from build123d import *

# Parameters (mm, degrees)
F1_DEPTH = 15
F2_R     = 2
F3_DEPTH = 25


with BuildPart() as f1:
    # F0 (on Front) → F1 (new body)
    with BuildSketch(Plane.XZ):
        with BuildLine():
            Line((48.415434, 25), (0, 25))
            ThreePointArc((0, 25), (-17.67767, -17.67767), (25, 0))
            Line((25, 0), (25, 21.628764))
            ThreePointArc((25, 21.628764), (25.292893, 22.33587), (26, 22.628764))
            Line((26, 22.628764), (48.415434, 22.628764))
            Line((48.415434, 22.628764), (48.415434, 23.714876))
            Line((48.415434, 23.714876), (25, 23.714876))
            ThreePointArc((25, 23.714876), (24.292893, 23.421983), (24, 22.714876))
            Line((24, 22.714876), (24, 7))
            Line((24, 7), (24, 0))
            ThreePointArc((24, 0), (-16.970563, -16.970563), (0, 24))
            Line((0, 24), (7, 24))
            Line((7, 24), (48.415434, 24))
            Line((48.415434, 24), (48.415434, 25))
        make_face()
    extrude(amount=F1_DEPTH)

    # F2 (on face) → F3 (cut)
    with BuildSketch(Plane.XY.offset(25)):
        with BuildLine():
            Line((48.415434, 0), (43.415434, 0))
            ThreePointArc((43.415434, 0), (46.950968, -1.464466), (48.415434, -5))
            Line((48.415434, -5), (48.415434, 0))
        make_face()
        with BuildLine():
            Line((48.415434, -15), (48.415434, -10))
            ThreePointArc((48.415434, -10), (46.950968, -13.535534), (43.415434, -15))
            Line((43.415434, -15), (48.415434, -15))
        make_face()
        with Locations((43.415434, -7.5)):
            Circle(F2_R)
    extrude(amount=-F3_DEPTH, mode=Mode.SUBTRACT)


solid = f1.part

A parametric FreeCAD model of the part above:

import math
import FreeCAD as App
import Part
import Sketcher

V = App.Vector
Q = App.Units.Quantity

doc = App.newDocument("Part")
params = doc.addObject("Spreadsheet::Sheet", "Params")
for row, (alias, value) in enumerate([
    ("sketch1_radius", "25 mm"),
    ("sketch1_radius2", "1.000001 mm"),
    ("pad1_length", "15 mm"),
    ("sketch2_diameter", "4 mm"),
    ("sketch2_radius", "5 mm"),
    ("pocket1_length", "25 mm"),
], start=1):
    params.set(f"A{row}", alias)
    params.set(f"B{row}", "=" + value)
    params.setAlias(f"B{row}", alias)

body = doc.addObject("PartDesign::Body", "Body")

# Sketch on XZ plane
sketch1 = body.newObject("Sketcher::SketchObject", "Sketch")
sketch1.AttachmentSupport = (doc.getObject("XZ_Plane"), [""])
sketch1.MapMode = "FlatFace"
sketch1.addGeometry(Part.LineSegment(V(48.415434, 25, 0), V(0, 25, 0)), False)
sketch1.addGeometry(Part.ArcOfCircle(Part.Circle(V(0, 0, 0), V(0, 0, 1), 25), math.radians(89.999999), math.radians(360.000001)), False)
sketch1.addGeometry(Part.LineSegment(V(25, 0, 0), V(25, 21.628764, 0)), False)
sketch1.addGeometry(Part.ArcOfCircle(Part.Circle(V(26.000001, 21.628763, 0), V(0, 0, 1), 1.000001), math.radians(90.000055), math.radians(179.999945)), False)
sketch1.addGeometry(Part.LineSegment(V(26, 22.628764, 0), V(48.415434, 22.628764, 0)), False)
sketch1.addGeometry(Part.LineSegment(V(48.415434, 22.628764, 0), V(48.415434, 23.714876, 0)), False)
sketch1.addGeometry(Part.LineSegment(V(48.415434, 23.714876, 0), V(25, 23.714876, 0)), False)
sketch1.addGeometry(Part.ArcOfCircle(Part.Circle(V(24.999999, 22.714877, 0), V(0, 0, 1), 0.999999), math.radians(89.999957), math.radians(180.000043)), False)
sketch1.addGeometry(Part.LineSegment(V(24, 22.714876, 0), V(24, 0, 0)), False)
sketch1.addGeometry(Part.ArcOfCircle(Part.Circle(V(0, 0, 0), V(0, 0, 1), 24), math.radians(90), math.radians(360)), False)
sketch1.addGeometry(Part.LineSegment(V(0, 24, 0), V(48.415434, 24, 0)), False)
sketch1.addGeometry(Part.LineSegment(V(48.415434, 24, 0), V(48.415434, 25, 0)), False)
sketch1.addConstraint(Sketcher.Constraint("Tangent", 0, 2, 1, 1))
sketch1.addConstraint(Sketcher.Constraint("Tangent", 1, 2, 2, 1))
sketch1.addConstraint(Sketcher.Constraint("Tangent", 2, 2, 3, 2))
sketch1.addConstraint(Sketcher.Constraint("Tangent", 3, 1, 4, 1))
sketch1.addConstraint(Sketcher.Constraint("Coincident", 4, 2, 5, 1))
sketch1.addConstraint(Sketcher.Constraint("Coincident", 5, 2, 6, 1))
sketch1.addConstraint(Sketcher.Constraint("Tangent", 6, 2, 7, 1))
sketch1.addConstraint(Sketcher.Constraint("Tangent", 7, 2, 8, 1))
sketch1.addConstraint(Sketcher.Constraint("Tangent", 8, 2, 9, 2))
sketch1.addConstraint(Sketcher.Constraint("Tangent", 9, 1, 10, 1))
sketch1.addConstraint(Sketcher.Constraint("Coincident", 10, 2, 11, 1))
sketch1.addConstraint(Sketcher.Constraint("Coincident", 11, 2, 0, 1))
sketch1.addConstraint(Sketcher.Constraint("Horizontal", 0))
sketch1.addConstraint(Sketcher.Constraint("Vertical", 2))
sketch1.addConstraint(Sketcher.Constraint("Horizontal", 4))
sketch1.addConstraint(Sketcher.Constraint("Vertical", 5))
sketch1.addConstraint(Sketcher.Constraint("Horizontal", 6))
sketch1.addConstraint(Sketcher.Constraint("Vertical", 8))
sketch1.addConstraint(Sketcher.Constraint("Horizontal", 10))
sketch1.addConstraint(Sketcher.Constraint("Vertical", 11))
sketch1.addConstraint(Sketcher.Constraint("Coincident", 1, 3, -1, 1))
sketch1.addConstraint(Sketcher.Constraint("Coincident", 9, 3, -1, 1))
sketch1.addConstraint(Sketcher.Constraint("Equal", 3, 7))
sketch1.addConstraint(Sketcher.Constraint("Vertical", 7, 3, 1, 2))
sketch1.addConstraint(Sketcher.Constraint("Vertical", 5, 2, 10, 2))
sketch1.addConstraint(Sketcher.Constraint("Radius", 1, Q("25 mm")))
sketch1.addConstraint(Sketcher.Constraint("Radius", 3, Q("1.000001 mm")))
sketch1.addConstraint(Sketcher.Constraint("DistanceX", 0, 2, 0, 1, Q("48.415434 mm")))
sketch1.addConstraint(Sketcher.Constraint("DistanceY", 2, 1, 2, 2, Q("21.628764 mm")))
sketch1.addConstraint(Sketcher.Constraint("DistanceY", 5, 1, 5, 2, Q("1.086112 mm")))
sketch1.setExpression("Constraints[25]", "Params.sketch1_radius")
sketch1.setExpression("Constraints[26]", "Params.sketch1_radius2")
pad1 = body.newObject("PartDesign::Pad", "Pad")
pad1.Profile = sketch1
pad1.setExpression("Length", "Params.pad1_length")

# Sketch on XY plane
sketch2 = body.newObject("Sketcher::SketchObject", "Sketch001")
sketch2.AttachmentSupport = (doc.getObject("XY_Plane"), [""])
sketch2.MapMode = "FlatFace"
sketch2.AttachmentOffset = App.Placement(V(0, 0, 25), App.Rotation())
sketch2.addGeometry(Part.LineSegment(V(48.415434, 0, 0), V(43.415434, 0, 0)), False)
sketch2.addGeometry(Part.ArcOfCircle(Part.Circle(V(43.415434, -5, 0), V(0, 0, 1), 5), math.radians(-0.000004), math.radians(90.000004)), False)
sketch2.addGeometry(Part.LineSegment(V(48.415434, -5, 0), V(48.415434, 0, 0)), False)
sketch2.addGeometry(Part.LineSegment(V(48.415434, -15, 0), V(48.415434, -10, 0)), False)
sketch2.addGeometry(Part.ArcOfCircle(Part.Circle(V(43.415434, -10, 0), V(0, 0, 1), 5), math.radians(-90.000004), math.radians(0.000004)), False)
sketch2.addGeometry(Part.LineSegment(V(43.415434, -15, 0), V(48.415434, -15, 0)), False)
sketch2.addGeometry(Part.Circle(V(43.415434, -7.5, 0), V(0, 0, 1), 2), False)
sketch2.addConstraint(Sketcher.Constraint("Tangent", 0, 2, 1, 2))
sketch2.addConstraint(Sketcher.Constraint("Tangent", 1, 1, 2, 1))
sketch2.addConstraint(Sketcher.Constraint("Coincident", 2, 2, 0, 1))
sketch2.addConstraint(Sketcher.Constraint("Tangent", 3, 2, 4, 2))
sketch2.addConstraint(Sketcher.Constraint("Tangent", 4, 1, 5, 1))
sketch2.addConstraint(Sketcher.Constraint("Coincident", 5, 2, 3, 1))
sketch2.addConstraint(Sketcher.Constraint("Horizontal", 0))
sketch2.addConstraint(Sketcher.Constraint("Vertical", 2))
sketch2.addConstraint(Sketcher.Constraint("Vertical", 3))
sketch2.addConstraint(Sketcher.Constraint("Horizontal", 5))
sketch2.addConstraint(Sketcher.Constraint("Equal", 1, 4))
sketch2.addConstraint(Sketcher.Constraint("PointOnObject", 0, 2, -1))
sketch2.addConstraint(Sketcher.Constraint("Vertical", 1, 3, 4, 3))
sketch2.addConstraint(Sketcher.Constraint("Vertical", 4, 3, 6, 3))
sketch2.addConstraint(Sketcher.Constraint("Diameter", 6, Q("4 mm")))
sketch2.addConstraint(Sketcher.Constraint("Radius", 1, Q("5 mm")))
sketch2.addConstraint(Sketcher.Constraint("DistanceY", 4, 3, -1, 1, Q("10 mm")))
sketch2.addConstraint(Sketcher.Constraint("DistanceY", 6, 3, -1, 1, Q("7.5 mm")))
sketch2.addConstraint(Sketcher.Constraint("DistanceX", -1, 1, 1, 3, Q("43.415434 mm")))
sketch2.setExpression("Constraints[14]", "Params.sketch2_diameter")
sketch2.setExpression("Constraints[15]", "Params.sketch2_radius")
pocket1 = body.newObject("PartDesign::Pocket", "Pocket")
pocket1.Profile = sketch2
pocket1.setExpression("Length", "Params.pocket1_length")

doc.recompute()
